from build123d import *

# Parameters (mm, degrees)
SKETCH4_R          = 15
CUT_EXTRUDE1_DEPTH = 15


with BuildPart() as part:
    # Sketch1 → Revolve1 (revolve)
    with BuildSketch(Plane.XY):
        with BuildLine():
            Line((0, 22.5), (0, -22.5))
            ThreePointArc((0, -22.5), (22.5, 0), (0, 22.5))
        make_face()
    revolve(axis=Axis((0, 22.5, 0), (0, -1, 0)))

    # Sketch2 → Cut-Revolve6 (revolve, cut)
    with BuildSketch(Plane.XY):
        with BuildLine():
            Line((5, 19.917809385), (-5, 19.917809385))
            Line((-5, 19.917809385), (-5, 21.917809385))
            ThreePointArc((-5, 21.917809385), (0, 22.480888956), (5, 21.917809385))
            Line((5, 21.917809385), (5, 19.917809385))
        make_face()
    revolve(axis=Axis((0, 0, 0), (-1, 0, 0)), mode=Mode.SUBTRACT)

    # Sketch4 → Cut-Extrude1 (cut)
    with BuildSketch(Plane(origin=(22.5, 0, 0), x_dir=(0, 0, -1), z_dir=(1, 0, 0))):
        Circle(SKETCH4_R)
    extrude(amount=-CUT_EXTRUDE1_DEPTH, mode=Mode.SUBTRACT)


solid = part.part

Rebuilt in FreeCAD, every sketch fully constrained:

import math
import FreeCAD as App
import Part
import Sketcher

V = App.Vector

doc = App.newDocument("Part")
params = doc.addObject("Spreadsheet::Sheet", "Params")
for row, (alias, value) in enumerate([
    ("sketch1_radius", "22.5 mm"),
    ("revolution_angle", "360 deg"),
    ("sketch2_width", "10 mm"),
    ("sketch2_height", "2 mm"),
    ("groove_angle", "360 deg"),
    ("sketch3_diameter", "30 mm"),
    ("pocket1_length", "15 mm"),
], start=1):
    params.set(f"A{row}", alias)
    params.set(f"B{row}", "=" + value)
    params.setAlias(f"B{row}", alias)

body = doc.addObject("PartDesign::Body", "Body")

# Sketch on XY plane
sketch1 = body.newObject("Sketcher::SketchObject", "Sketch")
sketch1.AttachmentSupport = (doc.getObject("XY_Plane"), [""])
sketch1.MapMode = "FlatFace"
sketch1.addGeometry(Part.LineSegment(V(0, 22, 0), V(0, -22, 0)), False)
sketch1.addGeometry(Part.ArcOfCircle(Part.Circle(V(0, 0, 0), V(0, 0, 1), 22), math.radians(-90), math.radians(90)), False)
sketch1.addConstraint(Sketcher.Constraint("Coincident", 0, 1, 1, 2))
sketch1.addConstraint(Sketcher.Constraint("Coincident", 1, 1, 0, 2))
sketch1.addConstraint(Sketcher.Constraint("Vertical", 0))
sketch1.addConstraint(Sketcher.Constraint("Coincident", 1, 3, -1, 1))
sketch1.addConstraint(Sketcher.Constraint("PointOnObject", 0, 1, -2))
sketch1.addConstraint(Sketcher.Constraint("Radius", 1, 22.5))
sketch1.setExpression("Constraints[5]", "Params.sketch1_radius")
revolution = body.newObject("PartDesign::Revolution", "Revolution")
revolution.Profile = sketch1
revolution.ReferenceAxis = (sketch1, ["V_Axis"])
revolution.setExpression("Angle", "Params.revolution_angle")

# Sketch on XY plane
sketch2 = body.newObject("Sketcher::SketchObject", "Sketch001")
sketch2.AttachmentSupport = (doc.getObject("XY_Plane"), [""])
sketch2.MapMode = "FlatFace"
sketch2.addGeometry(Part.LineSegment(V(-5, 19.9, 0), V(5, 19.9, 0)), False)
sketch2.addGeometry(Part.LineSegment(V(5, 19.9, 0), V(5, 21.9, 0)), False)
sketch2.addGeometry(Part.ArcOfCircle(Part.Circle(V(0, 0, 0), V(0, 0, 1), 22.5), math.radians(77), math.radians(103)), False)
sketch2.addGeometry(Part.LineSegment(V(-5, 21.9, 0), V(-5, 19.9, 0)), False)
sketch2.addConstraint(Sketcher.Constraint("Coincident", 0, 2, 1, 1))
sketch2.addConstraint(Sketcher.Constraint("Coincident", 1, 2, 2, 1))
sketch2.addConstraint(Sketcher.Constraint("Coincident", 2, 2, 3, 1))
sketch2.addConstraint(Sketcher.Constraint("Coincident", 3, 2, 0, 1))
sketch2.addConstraint(Sketcher.Constraint("Horizontal", 0))
sketch2.addConstraint(Sketcher.Constraint("Vertical", 1))
sketch2.addConstraint(Sketcher.Constraint("Vertical", 3))
sketch2.addConstraint(Sketcher.Constraint("Coincident", 2, 3, -1, 1))
sketch2.addConstraint(Sketcher.Constraint("Horizontal", 1, 2, 2, 2))
sketch2.addConstraint(Sketcher.Constraint("DistanceX", 0, 1, 0, 2, 10.0))
sketch2.addConstraint(Sketcher.Constraint("DistanceY", 1, 1, 1, 2, 2.0))
sketch2.addConstraint(Sketcher.Constraint("Radius", 2, 22.480889))
sketch2.setExpression("Constraints[9]", "Params.sketch2_width")
sketch2.setExpression("Constraints[10]", "Params.sketch2_height")
groove = body.newObject("PartDesign::Groove", "Groove")
groove.Profile = sketch2
groove.ReferenceAxis = (sketch2, ["H_Axis"])
groove.setExpression("Angle", "Params.groove_angle")

# Sketch on YZ plane
sketch3 = body.newObject("Sketcher::SketchObject", "Sketch002")
sketch3.AttachmentSupport = (doc.getObject("YZ_Plane"), [""])
sketch3.MapMode = "FlatFace"
sketch3.AttachmentOffset = App.Placement(V(0, 0, 22.5), App.Rotation())
sketch3.addGeometry(Part.Circle(V(0, 0, 0), V(0, 0, 1), 15), False)
sketch3.addConstraint(Sketcher.Constraint("Coincident", 0, 3, -1, 1))
sketch3.addConstraint(Sketcher.Constraint("Diameter", 0, 30.0))
sketch3.setExpression("Constraints[1]", "Params.sketch3_diameter")
pocket1 = body.newObject("PartDesign::Pocket", "Pocket")
pocket1.Profile = sketch3
pocket1.setExpression("Length", "Params.pocket1_length")

doc.recompute()
